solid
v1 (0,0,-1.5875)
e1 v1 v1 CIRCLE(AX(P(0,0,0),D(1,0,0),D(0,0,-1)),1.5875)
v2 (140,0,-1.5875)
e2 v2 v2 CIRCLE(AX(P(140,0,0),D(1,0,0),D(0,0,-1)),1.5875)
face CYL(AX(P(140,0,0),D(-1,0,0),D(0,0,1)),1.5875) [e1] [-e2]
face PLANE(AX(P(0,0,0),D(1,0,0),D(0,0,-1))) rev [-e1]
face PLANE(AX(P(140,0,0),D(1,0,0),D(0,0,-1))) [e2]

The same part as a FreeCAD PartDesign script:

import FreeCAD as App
import Part
import Sketcher

doc = App.newDocument("Part")
body = doc.addObject("PartDesign::Body", "Body")

sketch1 = doc.addObject("Sketcher::SketchObject", "Sketch")
body.addObject(sketch1)
sketch1.AttachmentSupport = (doc.YZ_Plane, [""])
sketch1.MapMode = "FlatFace"
sketch1.addGeometry(Part.Circle(App.Vector(0, 0, 0), App.Vector(0, 0, 1), 1.6), False)
sketch1.addConstraint([
    Sketcher.Constraint("Coincident", 0, 3, -1, 1),
    Sketcher.Constraint("Diameter", 0, 3.175),
])

sketch2 = doc.addObject("Sketcher::SketchObject", "Sketch001")
body.addObject(sketch2)
sketch2.AttachmentSupport = (doc.XY_Plane, [""])
sketch2.MapMode = "FlatFace"
sketch2.addGeometry(Part.LineSegment(App.Vector(0, 0, 0), App.Vector(140, 0, 0)), False)
sketch2.addConstraint([
    Sketcher.Constraint("Horizontal", 0),
    Sketcher.Constraint("Coincident", 0, 1, -1, 1),
    Sketcher.Constraint("DistanceX", 0, 1, 0, 2, 140.0),
])
doc.recompute()

additivepipe = doc.addObject("PartDesign::AdditivePipe", "AdditivePipe")
body.addObject(additivepipe)
additivepipe.Profile = sketch1
additivepipe.Spine = (sketch2, ["Edge1"])

doc.recompute()
